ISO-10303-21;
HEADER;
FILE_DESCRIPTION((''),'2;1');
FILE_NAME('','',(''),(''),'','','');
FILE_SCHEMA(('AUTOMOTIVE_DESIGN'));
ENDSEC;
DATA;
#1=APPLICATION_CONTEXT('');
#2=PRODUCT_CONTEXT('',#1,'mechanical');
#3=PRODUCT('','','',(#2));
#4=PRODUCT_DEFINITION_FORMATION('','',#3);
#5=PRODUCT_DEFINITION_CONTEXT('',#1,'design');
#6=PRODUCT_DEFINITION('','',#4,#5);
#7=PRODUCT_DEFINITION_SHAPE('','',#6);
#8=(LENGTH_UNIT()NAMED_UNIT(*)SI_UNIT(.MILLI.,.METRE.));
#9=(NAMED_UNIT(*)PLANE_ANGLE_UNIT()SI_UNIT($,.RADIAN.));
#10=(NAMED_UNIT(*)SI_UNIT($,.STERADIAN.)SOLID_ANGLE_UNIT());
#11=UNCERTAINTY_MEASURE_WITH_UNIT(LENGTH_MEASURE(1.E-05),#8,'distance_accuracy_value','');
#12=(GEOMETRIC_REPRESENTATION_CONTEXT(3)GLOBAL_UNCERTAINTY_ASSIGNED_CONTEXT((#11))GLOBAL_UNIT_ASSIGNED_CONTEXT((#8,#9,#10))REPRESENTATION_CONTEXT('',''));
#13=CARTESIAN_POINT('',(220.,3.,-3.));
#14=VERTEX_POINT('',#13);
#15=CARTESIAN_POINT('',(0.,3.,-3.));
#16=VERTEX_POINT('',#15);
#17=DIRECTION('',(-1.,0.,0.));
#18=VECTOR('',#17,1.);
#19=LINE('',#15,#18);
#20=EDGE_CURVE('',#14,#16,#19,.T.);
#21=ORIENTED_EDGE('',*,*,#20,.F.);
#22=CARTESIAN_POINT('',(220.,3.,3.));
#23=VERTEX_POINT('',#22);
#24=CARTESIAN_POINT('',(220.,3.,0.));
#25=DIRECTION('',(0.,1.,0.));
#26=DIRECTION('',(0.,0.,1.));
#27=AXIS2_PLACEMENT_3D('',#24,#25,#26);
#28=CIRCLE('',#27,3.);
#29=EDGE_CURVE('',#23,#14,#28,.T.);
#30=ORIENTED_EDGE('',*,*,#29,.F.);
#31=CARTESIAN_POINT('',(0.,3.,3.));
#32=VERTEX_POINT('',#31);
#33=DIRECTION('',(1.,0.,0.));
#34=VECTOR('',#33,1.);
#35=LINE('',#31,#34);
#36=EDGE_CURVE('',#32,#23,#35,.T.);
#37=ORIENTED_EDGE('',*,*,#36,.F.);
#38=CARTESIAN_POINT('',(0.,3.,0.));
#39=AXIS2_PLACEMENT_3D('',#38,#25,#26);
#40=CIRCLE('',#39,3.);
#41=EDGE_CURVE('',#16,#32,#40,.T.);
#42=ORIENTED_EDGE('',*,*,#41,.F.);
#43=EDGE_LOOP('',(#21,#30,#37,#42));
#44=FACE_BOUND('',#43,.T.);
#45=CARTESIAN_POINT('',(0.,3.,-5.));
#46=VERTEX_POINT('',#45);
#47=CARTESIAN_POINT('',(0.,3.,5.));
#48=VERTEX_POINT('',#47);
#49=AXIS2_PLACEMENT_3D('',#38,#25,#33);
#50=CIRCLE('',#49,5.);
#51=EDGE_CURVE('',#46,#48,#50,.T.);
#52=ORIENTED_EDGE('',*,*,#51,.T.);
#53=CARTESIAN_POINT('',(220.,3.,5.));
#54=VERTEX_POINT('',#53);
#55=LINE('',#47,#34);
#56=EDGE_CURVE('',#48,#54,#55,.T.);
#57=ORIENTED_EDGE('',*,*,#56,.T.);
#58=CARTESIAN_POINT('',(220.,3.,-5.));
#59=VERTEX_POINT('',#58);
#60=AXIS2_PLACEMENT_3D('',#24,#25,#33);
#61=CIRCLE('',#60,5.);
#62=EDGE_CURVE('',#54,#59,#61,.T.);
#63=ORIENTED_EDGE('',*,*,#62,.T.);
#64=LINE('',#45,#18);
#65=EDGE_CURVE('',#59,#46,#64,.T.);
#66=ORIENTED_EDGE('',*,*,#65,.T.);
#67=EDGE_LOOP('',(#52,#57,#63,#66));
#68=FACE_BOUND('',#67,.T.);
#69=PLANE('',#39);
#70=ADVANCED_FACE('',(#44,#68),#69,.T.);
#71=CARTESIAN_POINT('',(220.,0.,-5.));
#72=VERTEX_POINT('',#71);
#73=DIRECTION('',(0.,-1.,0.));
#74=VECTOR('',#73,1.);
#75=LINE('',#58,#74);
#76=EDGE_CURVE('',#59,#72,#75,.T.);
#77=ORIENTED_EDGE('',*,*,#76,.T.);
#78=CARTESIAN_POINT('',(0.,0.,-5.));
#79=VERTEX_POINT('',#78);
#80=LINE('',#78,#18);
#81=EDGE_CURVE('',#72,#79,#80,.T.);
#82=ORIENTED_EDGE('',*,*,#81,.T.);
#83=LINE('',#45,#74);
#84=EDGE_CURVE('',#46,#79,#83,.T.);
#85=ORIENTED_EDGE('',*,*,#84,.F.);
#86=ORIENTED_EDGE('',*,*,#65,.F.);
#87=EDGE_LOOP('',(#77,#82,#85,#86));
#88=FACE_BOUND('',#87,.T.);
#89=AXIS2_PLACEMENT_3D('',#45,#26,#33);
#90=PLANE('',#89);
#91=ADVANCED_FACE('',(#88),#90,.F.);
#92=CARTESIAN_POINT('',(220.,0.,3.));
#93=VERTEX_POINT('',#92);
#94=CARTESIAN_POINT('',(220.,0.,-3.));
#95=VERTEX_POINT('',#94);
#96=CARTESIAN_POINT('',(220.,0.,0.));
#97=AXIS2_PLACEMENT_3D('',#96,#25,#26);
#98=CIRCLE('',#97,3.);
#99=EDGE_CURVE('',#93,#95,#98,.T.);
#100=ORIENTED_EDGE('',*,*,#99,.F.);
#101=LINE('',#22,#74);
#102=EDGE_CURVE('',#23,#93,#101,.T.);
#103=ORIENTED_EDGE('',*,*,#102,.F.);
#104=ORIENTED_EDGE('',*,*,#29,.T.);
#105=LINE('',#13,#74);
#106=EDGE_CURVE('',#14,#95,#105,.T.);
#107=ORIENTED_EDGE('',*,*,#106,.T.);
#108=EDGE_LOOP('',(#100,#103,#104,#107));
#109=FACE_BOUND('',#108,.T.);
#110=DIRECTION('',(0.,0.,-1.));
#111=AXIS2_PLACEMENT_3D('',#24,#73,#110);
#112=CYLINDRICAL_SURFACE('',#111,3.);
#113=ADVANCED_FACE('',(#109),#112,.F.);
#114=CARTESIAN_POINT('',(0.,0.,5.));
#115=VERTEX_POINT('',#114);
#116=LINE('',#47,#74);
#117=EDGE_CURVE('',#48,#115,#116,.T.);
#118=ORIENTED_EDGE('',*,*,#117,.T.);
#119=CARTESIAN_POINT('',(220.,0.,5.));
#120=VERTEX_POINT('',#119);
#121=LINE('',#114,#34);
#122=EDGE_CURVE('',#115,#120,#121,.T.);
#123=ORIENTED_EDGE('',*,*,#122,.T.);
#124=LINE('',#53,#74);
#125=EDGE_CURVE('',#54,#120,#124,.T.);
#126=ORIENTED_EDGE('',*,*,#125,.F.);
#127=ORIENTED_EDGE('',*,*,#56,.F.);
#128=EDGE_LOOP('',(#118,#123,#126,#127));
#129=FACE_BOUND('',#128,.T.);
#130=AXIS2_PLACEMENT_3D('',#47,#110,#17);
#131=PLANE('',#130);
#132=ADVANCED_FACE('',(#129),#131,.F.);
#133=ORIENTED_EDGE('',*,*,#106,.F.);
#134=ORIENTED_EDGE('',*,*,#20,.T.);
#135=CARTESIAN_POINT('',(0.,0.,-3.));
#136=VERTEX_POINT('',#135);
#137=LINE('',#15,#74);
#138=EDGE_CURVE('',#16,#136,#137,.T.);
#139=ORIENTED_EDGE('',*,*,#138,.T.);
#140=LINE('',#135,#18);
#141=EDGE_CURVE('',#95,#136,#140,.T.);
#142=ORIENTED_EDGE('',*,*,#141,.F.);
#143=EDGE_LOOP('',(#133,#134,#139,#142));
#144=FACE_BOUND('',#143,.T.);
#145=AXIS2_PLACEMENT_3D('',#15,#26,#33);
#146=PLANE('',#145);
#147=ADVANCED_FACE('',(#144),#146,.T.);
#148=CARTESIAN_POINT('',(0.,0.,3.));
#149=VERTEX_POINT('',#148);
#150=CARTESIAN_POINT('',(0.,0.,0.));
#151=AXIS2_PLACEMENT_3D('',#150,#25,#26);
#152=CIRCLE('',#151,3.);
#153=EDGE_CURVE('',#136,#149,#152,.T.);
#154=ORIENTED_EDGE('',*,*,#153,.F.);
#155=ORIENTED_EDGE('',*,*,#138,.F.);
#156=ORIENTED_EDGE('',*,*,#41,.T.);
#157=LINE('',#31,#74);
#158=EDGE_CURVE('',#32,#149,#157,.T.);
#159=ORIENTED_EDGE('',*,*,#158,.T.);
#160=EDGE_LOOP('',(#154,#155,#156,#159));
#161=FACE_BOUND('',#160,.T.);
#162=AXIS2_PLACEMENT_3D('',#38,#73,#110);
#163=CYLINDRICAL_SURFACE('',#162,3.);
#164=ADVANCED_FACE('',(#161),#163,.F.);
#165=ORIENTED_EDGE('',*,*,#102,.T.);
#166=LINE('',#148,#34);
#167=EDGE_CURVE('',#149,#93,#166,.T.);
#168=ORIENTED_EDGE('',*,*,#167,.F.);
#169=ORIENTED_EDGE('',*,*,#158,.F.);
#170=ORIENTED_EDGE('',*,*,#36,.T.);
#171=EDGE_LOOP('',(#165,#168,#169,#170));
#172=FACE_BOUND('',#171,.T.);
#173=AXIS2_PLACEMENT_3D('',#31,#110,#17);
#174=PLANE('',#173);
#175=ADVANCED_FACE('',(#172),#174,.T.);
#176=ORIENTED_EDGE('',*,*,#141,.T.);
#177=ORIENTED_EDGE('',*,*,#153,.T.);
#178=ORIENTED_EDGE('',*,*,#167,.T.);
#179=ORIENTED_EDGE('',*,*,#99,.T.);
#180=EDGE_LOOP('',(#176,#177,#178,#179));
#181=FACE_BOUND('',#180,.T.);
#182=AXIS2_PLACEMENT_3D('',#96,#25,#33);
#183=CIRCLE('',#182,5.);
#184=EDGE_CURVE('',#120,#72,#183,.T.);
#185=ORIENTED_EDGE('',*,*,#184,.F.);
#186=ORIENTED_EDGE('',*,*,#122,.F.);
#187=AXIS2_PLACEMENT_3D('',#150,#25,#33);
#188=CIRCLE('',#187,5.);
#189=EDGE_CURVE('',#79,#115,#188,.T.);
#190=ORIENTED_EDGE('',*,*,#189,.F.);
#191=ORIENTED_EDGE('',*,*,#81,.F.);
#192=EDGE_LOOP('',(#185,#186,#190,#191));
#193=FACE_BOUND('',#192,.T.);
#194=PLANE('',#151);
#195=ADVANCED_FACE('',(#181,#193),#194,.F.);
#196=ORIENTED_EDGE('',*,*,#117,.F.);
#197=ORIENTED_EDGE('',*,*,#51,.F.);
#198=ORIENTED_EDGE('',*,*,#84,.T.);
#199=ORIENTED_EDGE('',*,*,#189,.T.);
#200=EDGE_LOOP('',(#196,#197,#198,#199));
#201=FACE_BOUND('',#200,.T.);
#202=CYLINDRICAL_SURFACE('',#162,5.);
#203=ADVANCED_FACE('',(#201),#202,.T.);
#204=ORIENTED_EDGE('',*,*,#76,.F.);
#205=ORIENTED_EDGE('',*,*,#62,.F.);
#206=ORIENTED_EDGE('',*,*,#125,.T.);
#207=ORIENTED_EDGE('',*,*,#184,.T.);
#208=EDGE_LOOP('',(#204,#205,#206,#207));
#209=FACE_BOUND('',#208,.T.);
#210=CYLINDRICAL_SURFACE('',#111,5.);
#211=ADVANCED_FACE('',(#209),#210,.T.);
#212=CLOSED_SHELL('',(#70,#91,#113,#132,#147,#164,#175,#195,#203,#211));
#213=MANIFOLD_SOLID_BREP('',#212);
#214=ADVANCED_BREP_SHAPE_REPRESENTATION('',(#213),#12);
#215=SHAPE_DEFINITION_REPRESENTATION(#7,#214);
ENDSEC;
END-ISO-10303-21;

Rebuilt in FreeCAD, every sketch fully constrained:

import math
import FreeCAD as App
import Part
import Sketcher

V = App.Vector

doc = App.newDocument("Part")
body = doc.addObject("PartDesign::Body", "Body")

sketch1 = doc.addObject("Sketcher::SketchObject", "Sketch")
body.addObject(sketch1)
sketch1.AttachmentSupport = (doc.XZ_Plane, [""])
sketch1.MapMode = "FlatFace"
sketch1.addGeometry([
    Part.LineSegment(V(0, 5, 0), V(220, 5, 0)),
    Part.ArcOfCircle(Part.Circle(V(220, 0, 0), V(0, 0, 1), 5), math.radians(-90), math.radians(90)),
    Part.LineSegment(V(220, -5, 0), V(0, -5, 0)),
    Part.ArcOfCircle(Part.Circle(V(0, 0, 0), V(0, 0, 1), 5), math.radians(90), math.radians(270)),
    Part.LineSegment(V(220, 3, 0), V(0, 3, 0)),
    Part.ArcOfCircle(Part.Circle(V(0, 0, 0), V(0, 0, 1), 3), math.radians(90), math.radians(270)),
    Part.LineSegment(V(0, -3, 0), V(220, -3, 0)),
    Part.ArcOfCircle(Part.Circle(V(220, 0, 0), V(0, 0, 1), 3), math.radians(-90), math.radians(90)),
], False)
sketch1.addConstraint([
    Sketcher.Constraint("Tangent", 0, 2, 1, 2),
    Sketcher.Constraint("Tangent", 1, 1, 2, 1),
    Sketcher.Constraint("Tangent", 2, 2, 3, 2),
    Sketcher.Constraint("Tangent", 3, 1, 0, 1),
    Sketcher.Constraint("Tangent", 4, 2, 5, 1),
    Sketcher.Constraint("Tangent", 5, 2, 6, 1),
    Sketcher.Constraint("Tangent", 6, 2, 7, 1),
    Sketcher.Constraint("Tangent", 7, 2, 4, 1),
    Sketcher.Constraint("Horizontal", 0),
    Sketcher.Constraint("Horizontal", 2),
    Sketcher.Constraint("Horizontal", 4),
    Sketcher.Constraint("Horizontal", 6),
    Sketcher.Constraint("Coincident", 3, 3, -1, 1),
    Sketcher.Constraint("Coincident", 5, 3, -1, 1),
    Sketcher.Constraint("Vertical", 7, 3, 0, 2),
    Sketcher.Constraint("Radius", 1, 5.0),
    Sketcher.Constraint("Radius", 5, 3.0),
    Sketcher.Constraint("DistanceX", 0, 1, 0, 2, 220.0),
])
pad1 = doc.addObject("PartDesign::Pad", "Pad")
body.addObject(pad1)
pad1.Profile = sketch1
pad1.Length = 3
pad1.Reversed = True

doc.recompute()
